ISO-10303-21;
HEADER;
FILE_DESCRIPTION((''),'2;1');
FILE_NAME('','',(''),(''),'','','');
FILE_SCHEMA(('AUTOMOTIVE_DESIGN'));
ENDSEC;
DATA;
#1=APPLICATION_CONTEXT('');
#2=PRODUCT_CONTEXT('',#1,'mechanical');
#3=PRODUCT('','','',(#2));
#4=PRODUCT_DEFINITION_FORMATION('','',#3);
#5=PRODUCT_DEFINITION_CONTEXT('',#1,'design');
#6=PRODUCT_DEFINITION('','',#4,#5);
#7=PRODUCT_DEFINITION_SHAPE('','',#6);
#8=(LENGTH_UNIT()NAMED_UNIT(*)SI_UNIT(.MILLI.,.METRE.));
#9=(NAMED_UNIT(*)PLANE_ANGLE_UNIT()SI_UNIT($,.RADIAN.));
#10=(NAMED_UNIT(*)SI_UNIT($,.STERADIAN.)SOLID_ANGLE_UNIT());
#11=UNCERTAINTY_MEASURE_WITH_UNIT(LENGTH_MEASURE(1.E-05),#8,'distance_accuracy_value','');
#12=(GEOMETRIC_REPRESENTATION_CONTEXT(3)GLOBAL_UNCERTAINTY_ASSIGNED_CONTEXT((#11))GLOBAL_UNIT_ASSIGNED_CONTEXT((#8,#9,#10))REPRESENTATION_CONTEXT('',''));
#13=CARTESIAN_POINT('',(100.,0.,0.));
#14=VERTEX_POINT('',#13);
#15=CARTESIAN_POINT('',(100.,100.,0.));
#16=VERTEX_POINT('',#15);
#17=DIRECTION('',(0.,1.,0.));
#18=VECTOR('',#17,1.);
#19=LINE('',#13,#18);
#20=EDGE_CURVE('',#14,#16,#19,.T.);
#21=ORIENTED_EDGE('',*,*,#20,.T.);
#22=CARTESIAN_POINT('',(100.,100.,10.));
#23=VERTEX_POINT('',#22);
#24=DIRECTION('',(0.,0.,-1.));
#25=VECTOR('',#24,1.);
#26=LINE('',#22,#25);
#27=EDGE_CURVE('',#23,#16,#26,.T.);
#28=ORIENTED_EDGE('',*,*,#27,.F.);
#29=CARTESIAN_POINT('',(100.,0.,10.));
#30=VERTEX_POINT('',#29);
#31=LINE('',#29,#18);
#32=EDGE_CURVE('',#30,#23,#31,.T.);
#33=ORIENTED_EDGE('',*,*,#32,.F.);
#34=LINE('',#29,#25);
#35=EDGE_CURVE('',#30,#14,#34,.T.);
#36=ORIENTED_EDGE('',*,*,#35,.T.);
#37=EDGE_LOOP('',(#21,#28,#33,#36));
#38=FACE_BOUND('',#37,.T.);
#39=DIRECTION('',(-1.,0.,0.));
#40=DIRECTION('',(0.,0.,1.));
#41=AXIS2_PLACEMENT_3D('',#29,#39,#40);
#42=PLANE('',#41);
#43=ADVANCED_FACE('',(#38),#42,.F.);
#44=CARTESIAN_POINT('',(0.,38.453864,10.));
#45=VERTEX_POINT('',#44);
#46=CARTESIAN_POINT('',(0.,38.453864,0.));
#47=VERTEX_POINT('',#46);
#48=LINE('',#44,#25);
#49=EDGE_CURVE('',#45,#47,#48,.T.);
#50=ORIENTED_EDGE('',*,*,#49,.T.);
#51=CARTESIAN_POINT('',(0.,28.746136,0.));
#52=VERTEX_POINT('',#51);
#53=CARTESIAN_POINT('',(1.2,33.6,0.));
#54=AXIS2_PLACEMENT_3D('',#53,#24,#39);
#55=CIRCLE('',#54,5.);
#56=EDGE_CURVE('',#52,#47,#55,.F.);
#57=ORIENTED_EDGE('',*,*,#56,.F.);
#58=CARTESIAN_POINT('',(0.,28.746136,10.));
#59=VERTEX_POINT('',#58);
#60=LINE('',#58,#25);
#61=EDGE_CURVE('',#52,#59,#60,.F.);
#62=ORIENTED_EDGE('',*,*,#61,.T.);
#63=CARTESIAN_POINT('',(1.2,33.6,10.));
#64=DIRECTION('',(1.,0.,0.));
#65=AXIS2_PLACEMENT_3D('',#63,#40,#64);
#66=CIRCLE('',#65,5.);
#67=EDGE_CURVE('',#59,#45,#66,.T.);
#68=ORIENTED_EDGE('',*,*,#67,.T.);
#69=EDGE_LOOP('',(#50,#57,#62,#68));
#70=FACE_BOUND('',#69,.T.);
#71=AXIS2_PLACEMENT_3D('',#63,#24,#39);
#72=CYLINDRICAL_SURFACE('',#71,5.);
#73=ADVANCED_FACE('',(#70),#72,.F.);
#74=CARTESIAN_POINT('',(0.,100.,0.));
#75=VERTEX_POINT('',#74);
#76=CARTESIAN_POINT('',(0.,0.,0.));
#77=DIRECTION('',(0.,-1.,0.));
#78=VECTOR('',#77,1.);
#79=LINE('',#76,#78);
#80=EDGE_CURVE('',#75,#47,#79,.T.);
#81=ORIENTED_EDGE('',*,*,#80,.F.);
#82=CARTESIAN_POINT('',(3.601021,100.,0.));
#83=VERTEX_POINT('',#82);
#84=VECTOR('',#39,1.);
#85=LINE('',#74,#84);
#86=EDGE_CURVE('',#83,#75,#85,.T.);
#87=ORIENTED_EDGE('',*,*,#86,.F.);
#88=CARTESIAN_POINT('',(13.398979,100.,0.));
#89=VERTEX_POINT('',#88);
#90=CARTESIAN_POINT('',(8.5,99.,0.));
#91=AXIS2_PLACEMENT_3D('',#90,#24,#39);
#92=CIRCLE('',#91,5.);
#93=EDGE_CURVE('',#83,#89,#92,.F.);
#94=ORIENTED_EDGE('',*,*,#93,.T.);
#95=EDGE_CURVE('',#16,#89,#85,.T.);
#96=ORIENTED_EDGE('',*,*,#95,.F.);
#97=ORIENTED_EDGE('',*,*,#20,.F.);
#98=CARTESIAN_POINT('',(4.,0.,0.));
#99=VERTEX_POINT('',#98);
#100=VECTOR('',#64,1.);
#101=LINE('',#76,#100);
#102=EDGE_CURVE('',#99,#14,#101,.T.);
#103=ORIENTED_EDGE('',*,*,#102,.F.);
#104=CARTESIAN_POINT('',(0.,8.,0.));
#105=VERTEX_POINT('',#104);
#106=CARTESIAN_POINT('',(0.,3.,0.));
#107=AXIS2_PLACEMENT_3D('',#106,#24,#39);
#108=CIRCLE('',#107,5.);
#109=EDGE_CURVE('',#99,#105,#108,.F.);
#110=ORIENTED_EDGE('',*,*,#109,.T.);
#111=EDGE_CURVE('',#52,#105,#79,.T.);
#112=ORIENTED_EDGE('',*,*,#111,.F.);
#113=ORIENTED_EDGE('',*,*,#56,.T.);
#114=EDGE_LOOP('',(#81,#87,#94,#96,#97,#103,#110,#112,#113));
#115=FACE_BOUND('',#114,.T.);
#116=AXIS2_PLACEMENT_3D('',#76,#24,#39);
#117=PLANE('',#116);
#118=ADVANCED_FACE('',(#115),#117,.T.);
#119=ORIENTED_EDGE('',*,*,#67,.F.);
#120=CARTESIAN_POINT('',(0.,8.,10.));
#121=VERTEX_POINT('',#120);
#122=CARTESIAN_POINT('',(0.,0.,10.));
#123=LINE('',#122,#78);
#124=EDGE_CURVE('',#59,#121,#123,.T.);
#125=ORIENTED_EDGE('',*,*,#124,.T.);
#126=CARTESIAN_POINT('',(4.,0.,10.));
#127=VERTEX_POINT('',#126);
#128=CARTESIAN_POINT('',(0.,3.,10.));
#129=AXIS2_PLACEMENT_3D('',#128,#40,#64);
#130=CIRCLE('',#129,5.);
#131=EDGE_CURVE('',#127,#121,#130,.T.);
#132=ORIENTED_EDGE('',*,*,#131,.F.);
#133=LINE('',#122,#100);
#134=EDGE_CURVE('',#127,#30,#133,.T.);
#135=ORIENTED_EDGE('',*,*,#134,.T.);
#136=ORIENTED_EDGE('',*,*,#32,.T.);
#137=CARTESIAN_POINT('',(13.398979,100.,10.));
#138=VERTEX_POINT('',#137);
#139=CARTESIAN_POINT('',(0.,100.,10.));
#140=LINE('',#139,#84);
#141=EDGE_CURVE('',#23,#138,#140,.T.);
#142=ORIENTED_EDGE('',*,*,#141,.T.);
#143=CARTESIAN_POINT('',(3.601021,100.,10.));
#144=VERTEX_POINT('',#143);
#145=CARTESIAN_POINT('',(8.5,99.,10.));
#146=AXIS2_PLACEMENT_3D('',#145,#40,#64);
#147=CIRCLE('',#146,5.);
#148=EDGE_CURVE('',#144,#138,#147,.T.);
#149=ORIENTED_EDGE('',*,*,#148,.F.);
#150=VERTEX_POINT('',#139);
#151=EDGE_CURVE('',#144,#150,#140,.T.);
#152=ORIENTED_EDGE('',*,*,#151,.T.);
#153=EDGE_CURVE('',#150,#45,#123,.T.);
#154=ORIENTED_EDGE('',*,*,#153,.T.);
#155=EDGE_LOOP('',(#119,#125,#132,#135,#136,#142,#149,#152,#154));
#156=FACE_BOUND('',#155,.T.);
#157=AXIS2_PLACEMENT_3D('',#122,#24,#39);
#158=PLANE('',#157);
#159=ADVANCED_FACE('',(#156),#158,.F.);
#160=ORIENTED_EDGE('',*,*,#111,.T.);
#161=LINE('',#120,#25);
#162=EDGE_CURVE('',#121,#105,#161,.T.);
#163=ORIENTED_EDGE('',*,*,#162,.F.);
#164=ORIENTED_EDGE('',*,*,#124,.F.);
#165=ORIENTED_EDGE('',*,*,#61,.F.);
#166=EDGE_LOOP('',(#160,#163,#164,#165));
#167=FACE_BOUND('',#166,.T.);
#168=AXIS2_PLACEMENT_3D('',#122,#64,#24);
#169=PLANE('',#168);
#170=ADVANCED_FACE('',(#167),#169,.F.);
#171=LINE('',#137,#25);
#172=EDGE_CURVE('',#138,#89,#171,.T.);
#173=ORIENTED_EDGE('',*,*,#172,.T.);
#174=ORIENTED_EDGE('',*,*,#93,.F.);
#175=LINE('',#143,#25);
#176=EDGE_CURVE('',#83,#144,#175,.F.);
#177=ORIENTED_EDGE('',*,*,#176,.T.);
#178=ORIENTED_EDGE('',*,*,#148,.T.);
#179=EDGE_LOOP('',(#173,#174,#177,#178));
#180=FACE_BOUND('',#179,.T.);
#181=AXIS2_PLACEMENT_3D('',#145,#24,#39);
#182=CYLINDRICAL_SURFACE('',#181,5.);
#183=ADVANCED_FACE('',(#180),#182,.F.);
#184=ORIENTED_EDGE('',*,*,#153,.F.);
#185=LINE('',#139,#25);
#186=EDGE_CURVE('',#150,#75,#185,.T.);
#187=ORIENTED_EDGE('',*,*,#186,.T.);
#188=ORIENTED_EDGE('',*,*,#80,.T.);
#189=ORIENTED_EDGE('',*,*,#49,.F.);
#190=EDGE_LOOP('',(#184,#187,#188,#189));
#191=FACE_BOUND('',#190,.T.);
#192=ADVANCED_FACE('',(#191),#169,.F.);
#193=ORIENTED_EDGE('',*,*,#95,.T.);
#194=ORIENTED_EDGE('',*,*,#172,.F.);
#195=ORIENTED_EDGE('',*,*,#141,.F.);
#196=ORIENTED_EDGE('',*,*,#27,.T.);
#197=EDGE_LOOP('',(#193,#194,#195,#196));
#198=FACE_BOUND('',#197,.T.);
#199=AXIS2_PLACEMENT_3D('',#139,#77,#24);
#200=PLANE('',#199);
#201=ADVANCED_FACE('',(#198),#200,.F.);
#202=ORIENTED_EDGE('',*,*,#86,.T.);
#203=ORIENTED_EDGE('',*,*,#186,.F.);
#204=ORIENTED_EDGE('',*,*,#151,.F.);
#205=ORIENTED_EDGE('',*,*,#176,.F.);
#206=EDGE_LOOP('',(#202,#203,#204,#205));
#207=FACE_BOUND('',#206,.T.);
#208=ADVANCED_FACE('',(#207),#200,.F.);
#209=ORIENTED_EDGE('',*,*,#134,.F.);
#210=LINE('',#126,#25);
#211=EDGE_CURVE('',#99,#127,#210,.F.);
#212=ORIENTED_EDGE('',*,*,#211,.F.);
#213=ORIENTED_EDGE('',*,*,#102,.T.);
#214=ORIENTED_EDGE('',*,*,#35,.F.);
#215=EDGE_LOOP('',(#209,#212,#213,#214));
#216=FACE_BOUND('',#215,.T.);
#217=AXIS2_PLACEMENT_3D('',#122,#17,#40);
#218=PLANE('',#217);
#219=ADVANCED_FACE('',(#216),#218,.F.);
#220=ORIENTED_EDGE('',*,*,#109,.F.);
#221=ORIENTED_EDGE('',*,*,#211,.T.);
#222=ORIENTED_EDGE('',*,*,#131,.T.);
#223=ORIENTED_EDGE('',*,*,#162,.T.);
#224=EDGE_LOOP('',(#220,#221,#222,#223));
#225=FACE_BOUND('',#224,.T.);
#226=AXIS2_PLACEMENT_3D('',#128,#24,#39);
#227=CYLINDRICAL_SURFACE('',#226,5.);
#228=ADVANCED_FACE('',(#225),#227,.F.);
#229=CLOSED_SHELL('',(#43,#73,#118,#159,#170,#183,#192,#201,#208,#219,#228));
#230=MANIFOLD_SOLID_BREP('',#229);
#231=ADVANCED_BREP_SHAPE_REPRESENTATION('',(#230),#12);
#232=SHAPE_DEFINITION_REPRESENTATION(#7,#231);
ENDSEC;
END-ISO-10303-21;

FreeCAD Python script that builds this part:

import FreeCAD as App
import Part
import Sketcher


def add_polygon(sketch, points):
    """Adds a closed chain of lines whose ends are joined by coincident constraints."""
    first, n = sketch.GeometryCount, len(points)
    for a, b in zip(points, points[1:] + points[:1]):
        sketch.addGeometry(Part.LineSegment(App.Vector(*a, 0), App.Vector(*b, 0)), False)
    for i in range(n):
        sketch.addConstraint(Sketcher.Constraint("Coincident", first + i, 2, first + (i + 1) % n, 1))

doc = App.newDocument("Part")
body = doc.addObject("PartDesign::Body", "Body")

# Sketch on XY plane
sketch1 = doc.addObject("Sketcher::SketchObject", "Sketch")
body.addObject(sketch1)
sketch1.AttachmentSupport = (doc.XY_Plane, [""])
sketch1.MapMode = "FlatFace"
add_polygon(sketch1, [(0, 100), (0, 0), (100, 0), (100, 100)])  # lines 0-3
sketch1.addConstraint([
    Sketcher.Constraint("Vertical", 0),
    Sketcher.Constraint("Horizontal", 1),
    Sketcher.Constraint("Vertical", 2),
    Sketcher.Constraint("Horizontal", 3),
    Sketcher.Constraint("Coincident", 0, 2, -1, 1),
    Sketcher.Constraint("Equal", 3, 0),
    Sketcher.Constraint("DistanceX", 1, 1, 1, 2, 100.0),
])
pad1 = doc.addObject("PartDesign::Pad", "Pad")
body.addObject(pad1)
pad1.Profile = sketch1
pad1.Length = 10

# Sketch on XY plane
sketch2 = doc.addObject("Sketcher::SketchObject", "Sketch001")
body.addObject(sketch2)
sketch2.AttachmentSupport = (doc.XY_Plane, [""])
sketch2.MapMode = "FlatFace"
sketch2.addGeometry(Part.Circle(App.Vector(0, 3, 0), App.Vector(0, 0, 1), 5), False)
sketch2.addConstraint([
    Sketcher.Constraint("PointOnObject", 0, 3, -2),
    Sketcher.Constraint("Diameter", 0, 10.0),
    Sketcher.Constraint("DistanceY", -1, 1, 0, 3, 3.0),
])
pocket1 = doc.addObject("PartDesign::Pocket", "Pocket")
body.addObject(pocket1)
pocket1.Profile = sketch2
pocket1.Length = 10
pocket1.Reversed = True

# Sketch on XY plane
sketch3 = doc.addObject("Sketcher::SketchObject", "Sketch002")
body.addObject(sketch3)
sketch3.AttachmentSupport = (doc.XY_Plane, [""])
sketch3.MapMode = "FlatFace"
sketch3.addGeometry(Part.Circle(App.Vector(1.2, 33.6, 0), App.Vector(0, 0, 1), 5), False)
sketch3.addConstraint([
    Sketcher.Constraint("Diameter", 0, 10.0),
    Sketcher.Constraint("DistanceX", -1, 1, 0, 3, 1.2),
    Sketcher.Constraint("DistanceY", -1, 1, 0, 3, 33.6),
])
pocket2 = doc.addObject("PartDesign::Pocket", "Pocket001")
body.addObject(pocket2)
pocket2.Profile = sketch3
pocket2.Length = 10
pocket2.Reversed = True

# Sketch on XY plane
sketch4 = doc.addObject("Sketcher::SketchObject", "Sketch003")
body.addObject(sketch4)
sketch4.AttachmentSupport = (doc.XY_Plane, [""])
sketch4.MapMode = "FlatFace"
sketch4.addGeometry(Part.Circle(App.Vector(8.5, 99, 0), App.Vector(0, 0, 1), 5), False)
sketch4.addConstraint([
    Sketcher.Constraint("Diameter", 0, 10.0),
    Sketcher.Constraint("DistanceY", -1, 1, 0, 3, 99.0),
    Sketcher.Constraint("DistanceX", -1, 1, 0, 3, 8.5),
])
pocket3 = doc.addObject("PartDesign::Pocket", "Pocket002")
body.addObject(pocket3)
pocket3.Profile = sketch4
pocket3.Length = 10
pocket3.Reversed = True

doc.recompute()
